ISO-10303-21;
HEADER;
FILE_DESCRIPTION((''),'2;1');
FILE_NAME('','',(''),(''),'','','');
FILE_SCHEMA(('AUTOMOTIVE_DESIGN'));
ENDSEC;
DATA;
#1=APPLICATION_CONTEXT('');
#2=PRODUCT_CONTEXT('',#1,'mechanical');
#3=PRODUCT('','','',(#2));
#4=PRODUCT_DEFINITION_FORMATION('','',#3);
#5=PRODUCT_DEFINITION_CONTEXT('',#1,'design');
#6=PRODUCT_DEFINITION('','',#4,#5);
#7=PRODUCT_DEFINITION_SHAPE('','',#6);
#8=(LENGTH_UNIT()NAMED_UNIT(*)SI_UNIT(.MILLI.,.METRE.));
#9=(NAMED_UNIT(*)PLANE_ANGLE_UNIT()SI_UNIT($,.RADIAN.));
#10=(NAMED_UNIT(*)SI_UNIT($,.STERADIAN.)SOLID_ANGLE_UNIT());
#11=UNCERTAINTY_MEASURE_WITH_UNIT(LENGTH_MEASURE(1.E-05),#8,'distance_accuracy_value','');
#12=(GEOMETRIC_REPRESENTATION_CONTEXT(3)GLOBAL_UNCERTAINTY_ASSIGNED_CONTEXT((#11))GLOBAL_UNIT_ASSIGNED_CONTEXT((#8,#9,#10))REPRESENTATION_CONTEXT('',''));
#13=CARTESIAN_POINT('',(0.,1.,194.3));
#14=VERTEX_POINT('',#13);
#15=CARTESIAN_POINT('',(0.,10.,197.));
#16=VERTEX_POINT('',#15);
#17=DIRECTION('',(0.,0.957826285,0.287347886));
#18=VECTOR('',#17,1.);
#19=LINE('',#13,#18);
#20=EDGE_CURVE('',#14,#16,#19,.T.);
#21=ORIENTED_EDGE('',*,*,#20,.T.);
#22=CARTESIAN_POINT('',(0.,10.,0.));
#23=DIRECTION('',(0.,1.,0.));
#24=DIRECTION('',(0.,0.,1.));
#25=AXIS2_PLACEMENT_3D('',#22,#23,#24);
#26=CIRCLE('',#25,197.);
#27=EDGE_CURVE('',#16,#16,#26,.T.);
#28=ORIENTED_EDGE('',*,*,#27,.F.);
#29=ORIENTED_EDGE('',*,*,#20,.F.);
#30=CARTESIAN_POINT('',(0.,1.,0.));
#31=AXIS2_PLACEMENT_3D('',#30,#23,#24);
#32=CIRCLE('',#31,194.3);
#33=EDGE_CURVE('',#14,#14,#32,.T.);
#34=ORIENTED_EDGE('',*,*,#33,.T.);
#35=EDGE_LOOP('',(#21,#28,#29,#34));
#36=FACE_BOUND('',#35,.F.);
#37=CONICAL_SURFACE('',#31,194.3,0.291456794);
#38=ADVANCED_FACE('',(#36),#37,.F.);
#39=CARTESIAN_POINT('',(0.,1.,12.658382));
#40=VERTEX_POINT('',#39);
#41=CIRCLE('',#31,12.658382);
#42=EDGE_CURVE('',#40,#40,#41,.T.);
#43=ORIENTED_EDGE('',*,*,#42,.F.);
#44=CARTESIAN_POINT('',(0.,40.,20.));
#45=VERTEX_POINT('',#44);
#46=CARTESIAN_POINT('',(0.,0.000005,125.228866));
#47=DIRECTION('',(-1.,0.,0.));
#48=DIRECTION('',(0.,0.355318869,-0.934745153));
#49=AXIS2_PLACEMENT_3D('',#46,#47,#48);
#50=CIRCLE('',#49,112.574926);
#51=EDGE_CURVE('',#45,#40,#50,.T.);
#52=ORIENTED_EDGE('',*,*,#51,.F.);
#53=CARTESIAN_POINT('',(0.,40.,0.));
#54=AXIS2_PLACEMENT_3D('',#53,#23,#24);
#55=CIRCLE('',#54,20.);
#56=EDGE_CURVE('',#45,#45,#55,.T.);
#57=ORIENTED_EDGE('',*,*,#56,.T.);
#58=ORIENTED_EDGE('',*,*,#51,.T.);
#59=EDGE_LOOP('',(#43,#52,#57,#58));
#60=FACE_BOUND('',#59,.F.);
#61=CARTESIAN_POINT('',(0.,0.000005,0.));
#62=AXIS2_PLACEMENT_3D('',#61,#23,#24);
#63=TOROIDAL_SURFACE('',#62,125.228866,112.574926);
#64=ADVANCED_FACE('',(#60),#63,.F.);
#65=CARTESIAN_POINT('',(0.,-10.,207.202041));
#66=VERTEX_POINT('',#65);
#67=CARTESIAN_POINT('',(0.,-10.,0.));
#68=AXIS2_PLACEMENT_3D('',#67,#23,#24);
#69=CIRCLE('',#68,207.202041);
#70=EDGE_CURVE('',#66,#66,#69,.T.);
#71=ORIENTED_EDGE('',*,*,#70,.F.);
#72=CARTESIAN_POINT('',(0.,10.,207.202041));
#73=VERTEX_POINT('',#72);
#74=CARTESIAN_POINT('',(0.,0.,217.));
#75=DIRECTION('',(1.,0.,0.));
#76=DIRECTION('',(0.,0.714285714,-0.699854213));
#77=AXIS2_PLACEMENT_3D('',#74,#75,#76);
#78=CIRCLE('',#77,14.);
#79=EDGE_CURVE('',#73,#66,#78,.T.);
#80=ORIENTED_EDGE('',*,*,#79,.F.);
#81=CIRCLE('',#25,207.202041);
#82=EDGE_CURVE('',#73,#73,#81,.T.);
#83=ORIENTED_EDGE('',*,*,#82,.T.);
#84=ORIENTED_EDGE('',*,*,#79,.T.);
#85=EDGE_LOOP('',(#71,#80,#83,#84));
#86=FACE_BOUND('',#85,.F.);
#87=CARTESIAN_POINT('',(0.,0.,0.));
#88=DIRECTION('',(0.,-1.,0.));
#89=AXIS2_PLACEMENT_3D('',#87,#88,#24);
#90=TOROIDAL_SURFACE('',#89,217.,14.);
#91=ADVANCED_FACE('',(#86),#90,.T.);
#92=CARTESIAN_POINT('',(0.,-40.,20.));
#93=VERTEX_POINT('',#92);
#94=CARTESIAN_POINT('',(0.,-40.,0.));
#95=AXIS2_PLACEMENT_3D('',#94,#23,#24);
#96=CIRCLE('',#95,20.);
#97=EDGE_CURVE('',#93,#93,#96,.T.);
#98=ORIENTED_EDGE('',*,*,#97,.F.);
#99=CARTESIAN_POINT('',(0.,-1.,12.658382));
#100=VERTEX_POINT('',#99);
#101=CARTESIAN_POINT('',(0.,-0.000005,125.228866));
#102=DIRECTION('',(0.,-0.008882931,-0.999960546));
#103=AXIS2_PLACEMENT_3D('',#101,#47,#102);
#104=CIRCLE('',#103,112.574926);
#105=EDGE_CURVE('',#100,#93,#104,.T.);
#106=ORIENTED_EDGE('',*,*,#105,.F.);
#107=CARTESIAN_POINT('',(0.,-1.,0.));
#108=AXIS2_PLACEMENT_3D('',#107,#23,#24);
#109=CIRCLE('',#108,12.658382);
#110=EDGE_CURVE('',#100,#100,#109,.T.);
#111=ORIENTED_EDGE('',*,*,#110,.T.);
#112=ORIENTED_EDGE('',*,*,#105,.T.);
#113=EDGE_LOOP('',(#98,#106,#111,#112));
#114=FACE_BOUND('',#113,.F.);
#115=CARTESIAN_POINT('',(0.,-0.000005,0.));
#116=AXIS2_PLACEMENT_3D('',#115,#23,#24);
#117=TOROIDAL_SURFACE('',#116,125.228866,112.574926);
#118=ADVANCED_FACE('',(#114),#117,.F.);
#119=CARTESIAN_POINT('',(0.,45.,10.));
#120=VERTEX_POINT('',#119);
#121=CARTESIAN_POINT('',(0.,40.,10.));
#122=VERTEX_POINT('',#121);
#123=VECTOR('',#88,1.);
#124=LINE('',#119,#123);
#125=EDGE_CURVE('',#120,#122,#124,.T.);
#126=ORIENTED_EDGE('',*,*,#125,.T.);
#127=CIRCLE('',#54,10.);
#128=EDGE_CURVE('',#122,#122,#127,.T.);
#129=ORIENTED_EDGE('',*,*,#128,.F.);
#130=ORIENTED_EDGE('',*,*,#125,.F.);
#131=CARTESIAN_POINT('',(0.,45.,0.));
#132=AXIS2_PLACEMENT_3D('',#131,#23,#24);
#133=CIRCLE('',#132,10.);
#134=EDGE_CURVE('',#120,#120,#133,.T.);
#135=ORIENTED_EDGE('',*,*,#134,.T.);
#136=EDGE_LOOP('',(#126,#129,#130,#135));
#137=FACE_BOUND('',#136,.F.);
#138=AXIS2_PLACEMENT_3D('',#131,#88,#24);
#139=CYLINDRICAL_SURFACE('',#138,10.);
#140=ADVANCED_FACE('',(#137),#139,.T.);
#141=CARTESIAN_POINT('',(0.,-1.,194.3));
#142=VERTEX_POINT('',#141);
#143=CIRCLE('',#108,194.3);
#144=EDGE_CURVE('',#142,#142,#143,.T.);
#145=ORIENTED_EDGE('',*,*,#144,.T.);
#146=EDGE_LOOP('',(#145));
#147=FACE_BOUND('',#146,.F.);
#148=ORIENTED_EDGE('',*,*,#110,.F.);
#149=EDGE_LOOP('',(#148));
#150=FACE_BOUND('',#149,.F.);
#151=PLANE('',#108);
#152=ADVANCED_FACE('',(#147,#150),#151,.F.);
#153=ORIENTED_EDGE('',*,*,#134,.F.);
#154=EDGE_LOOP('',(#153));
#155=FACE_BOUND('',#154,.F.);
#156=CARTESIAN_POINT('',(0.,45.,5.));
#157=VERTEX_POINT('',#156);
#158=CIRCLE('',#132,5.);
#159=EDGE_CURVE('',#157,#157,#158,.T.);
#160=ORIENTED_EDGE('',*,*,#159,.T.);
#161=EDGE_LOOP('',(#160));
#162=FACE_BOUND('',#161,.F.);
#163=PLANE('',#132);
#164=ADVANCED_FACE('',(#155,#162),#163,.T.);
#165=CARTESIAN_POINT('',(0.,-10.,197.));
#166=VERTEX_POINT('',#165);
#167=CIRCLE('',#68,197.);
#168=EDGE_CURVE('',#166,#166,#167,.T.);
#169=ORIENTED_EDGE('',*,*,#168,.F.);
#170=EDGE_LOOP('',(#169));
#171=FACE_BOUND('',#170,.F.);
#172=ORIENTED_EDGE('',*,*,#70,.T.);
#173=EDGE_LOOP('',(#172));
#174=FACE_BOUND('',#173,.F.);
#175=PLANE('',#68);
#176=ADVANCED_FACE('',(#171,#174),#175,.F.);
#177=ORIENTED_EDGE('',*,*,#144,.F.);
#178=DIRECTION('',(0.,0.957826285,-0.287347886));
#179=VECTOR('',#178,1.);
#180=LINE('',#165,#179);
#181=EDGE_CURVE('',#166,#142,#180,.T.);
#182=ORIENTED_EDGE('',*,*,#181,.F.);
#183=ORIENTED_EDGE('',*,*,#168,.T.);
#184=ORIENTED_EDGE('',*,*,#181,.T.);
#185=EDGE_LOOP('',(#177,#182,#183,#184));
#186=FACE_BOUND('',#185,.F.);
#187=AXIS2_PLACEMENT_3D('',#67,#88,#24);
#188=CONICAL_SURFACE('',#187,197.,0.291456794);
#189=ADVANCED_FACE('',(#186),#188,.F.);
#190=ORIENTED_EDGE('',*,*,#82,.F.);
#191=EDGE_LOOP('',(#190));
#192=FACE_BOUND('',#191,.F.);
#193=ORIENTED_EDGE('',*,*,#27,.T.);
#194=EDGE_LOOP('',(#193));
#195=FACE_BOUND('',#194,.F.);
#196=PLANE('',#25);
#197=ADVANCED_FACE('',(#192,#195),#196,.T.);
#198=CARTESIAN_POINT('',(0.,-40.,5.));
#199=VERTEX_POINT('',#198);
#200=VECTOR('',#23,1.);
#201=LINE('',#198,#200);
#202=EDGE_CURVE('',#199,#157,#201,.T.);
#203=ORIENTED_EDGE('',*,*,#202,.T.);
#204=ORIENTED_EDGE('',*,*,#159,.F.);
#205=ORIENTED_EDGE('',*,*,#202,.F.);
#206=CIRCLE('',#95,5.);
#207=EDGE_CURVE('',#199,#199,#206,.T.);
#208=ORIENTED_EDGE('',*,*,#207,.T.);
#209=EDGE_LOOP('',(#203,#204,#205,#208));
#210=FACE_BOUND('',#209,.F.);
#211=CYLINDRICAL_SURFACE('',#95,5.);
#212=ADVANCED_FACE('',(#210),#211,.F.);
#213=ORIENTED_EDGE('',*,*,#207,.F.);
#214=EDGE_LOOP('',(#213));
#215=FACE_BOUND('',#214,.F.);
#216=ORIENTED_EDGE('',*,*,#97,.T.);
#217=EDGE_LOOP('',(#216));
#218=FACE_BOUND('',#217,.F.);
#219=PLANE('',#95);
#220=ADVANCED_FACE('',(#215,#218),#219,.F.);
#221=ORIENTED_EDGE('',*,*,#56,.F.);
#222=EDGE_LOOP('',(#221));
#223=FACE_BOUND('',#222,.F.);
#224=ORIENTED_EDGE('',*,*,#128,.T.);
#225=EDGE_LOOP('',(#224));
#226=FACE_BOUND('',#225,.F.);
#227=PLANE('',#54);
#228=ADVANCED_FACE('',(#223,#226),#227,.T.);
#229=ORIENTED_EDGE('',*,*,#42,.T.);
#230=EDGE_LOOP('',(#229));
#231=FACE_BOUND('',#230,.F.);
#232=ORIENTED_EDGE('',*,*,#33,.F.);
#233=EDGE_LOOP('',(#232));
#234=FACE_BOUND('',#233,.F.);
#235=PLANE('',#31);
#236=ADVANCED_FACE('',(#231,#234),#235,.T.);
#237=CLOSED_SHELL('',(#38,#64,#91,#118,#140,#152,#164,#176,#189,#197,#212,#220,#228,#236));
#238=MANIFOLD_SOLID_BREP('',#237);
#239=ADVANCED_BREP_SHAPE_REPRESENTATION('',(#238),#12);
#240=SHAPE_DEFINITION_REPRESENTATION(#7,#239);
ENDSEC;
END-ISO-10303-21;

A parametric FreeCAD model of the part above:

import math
import FreeCAD as App
import Part
import Sketcher
Q = App.Units.Quantity

doc = App.newDocument("Part")
body = doc.addObject("PartDesign::Body", "Body")

# Sketch on YZ plane
sketch1 = body.newObject("Sketcher::SketchObject", "Sketch")
sketch1.AttachmentSupport = (doc.getObject("YZ_Plane"), [""])
sketch1.MapMode = "FlatFace"
sketch1.addGeometry([
    Part.LineSegment(App.Vector(10, 197, 0), App.Vector(10, 207, 0)),  # 0
    Part.ArcOfCircle(Part.Circle(App.Vector(0, 217, 0), App.Vector(0, 0, 1), 14), math.radians(-44), math.radians(224)),  # 1
    Part.LineSegment(App.Vector(-10, 207, 0), App.Vector(-10, 197, 0)),  # 2
    Part.LineSegment(App.Vector(-10, 197, 0), App.Vector(-1, 194, 0)),  # 3
    Part.LineSegment(App.Vector(-1, 194, 0), App.Vector(-1, 13, 0)),  # 4
    Part.ArcOfCircle(Part.Circle(App.Vector(0, 125, 0), App.Vector(0, 0, 1), 113), math.radians(-111), math.radians(-91)),  # 5
    Part.LineSegment(App.Vector(-40, 20, 0), App.Vector(-40, 5, 0)),  # 6
    Part.LineSegment(App.Vector(-40, 5, 0), App.Vector(45, 5, 0)),  # 7
    Part.LineSegment(App.Vector(45, 5, 0), App.Vector(45, 10, 0)),  # 8
    Part.LineSegment(App.Vector(45, 10, 0), App.Vector(40, 10, 0)),  # 9
    Part.LineSegment(App.Vector(40, 10, 0), App.Vector(40, 20, 0)),  # 10
    Part.ArcOfCircle(Part.Circle(App.Vector(0, 125, 0), App.Vector(0, 0, 1), 113), math.radians(-89), math.radians(-69)),  # 11
    Part.LineSegment(App.Vector(1, 13, 0), App.Vector(1, 194, 0)),  # 12
    Part.LineSegment(App.Vector(1, 194, 0), App.Vector(10, 197, 0)),  # 13
], False)
sketch1.addConstraint([
    Sketcher.Constraint("Coincident", 0, 2, 1, 1),
    Sketcher.Constraint("Coincident", 1, 2, 2, 1),
    Sketcher.Constraint("Coincident", 2, 2, 3, 1),
    Sketcher.Constraint("Coincident", 3, 2, 4, 1),
    Sketcher.Constraint("Coincident", 4, 2, 5, 2),
    Sketcher.Constraint("Coincident", 5, 1, 6, 1),
    Sketcher.Constraint("Coincident", 6, 2, 7, 1),
    Sketcher.Constraint("Coincident", 7, 2, 8, 1),
    Sketcher.Constraint("Coincident", 8, 2, 9, 1),
    Sketcher.Constraint("Coincident", 9, 2, 10, 1),
    Sketcher.Constraint("Coincident", 10, 2, 11, 2),
    Sketcher.Constraint("Coincident", 11, 1, 12, 1),
    Sketcher.Constraint("Coincident", 12, 2, 13, 1),
    Sketcher.Constraint("Coincident", 13, 2, 0, 1),
    Sketcher.Constraint("Vertical", 0),
    Sketcher.Constraint("Vertical", 2),
    Sketcher.Constraint("Vertical", 4),
    Sketcher.Constraint("Vertical", 6),
    Sketcher.Constraint("Horizontal", 7),
    Sketcher.Constraint("Vertical", 8),
    Sketcher.Constraint("Horizontal", 9),
    Sketcher.Constraint("Vertical", 10),
    Sketcher.Constraint("Vertical", 12),
    Sketcher.Constraint("Coincident", 11, 3, 5, 3),
    Sketcher.Constraint("Equal", 5, 11),
    Sketcher.Constraint("Symmetric", 0, 2, 1, 2, -2),
    Sketcher.Constraint("Symmetric", 5, 1, 10, 2, -2),
    Sketcher.Constraint("Symmetric", 3, 2, 12, 2, -2),
    Sketcher.Constraint("Horizontal", 2, 2, 13, 2),
    Sketcher.Constraint("Equal", 9, 8),
    Sketcher.Constraint("Radius", 1, Q("14 mm")),
    Sketcher.Constraint("DistanceX", 7, 1, 7, 2, Q("85 mm")),
    Sketcher.Constraint("DistanceX", 9, 2, 9, 1, Q("5 mm")),
    Sketcher.Constraint("DistanceY", 6, 2, 6, 1, Q("15 mm")),
    Sketcher.Constraint("DistanceY", -1, 1, 1, 3, Q("217 mm")),
    Sketcher.Constraint("DistanceX", -1, 1, 0, 2, Q("10 mm")),
    Sketcher.Constraint("DistanceY", -1, 1, 2, 2, Q("197 mm")),
    Sketcher.Constraint("DistanceX", 3, 2, -1, 1, Q("1 mm")),
    Sketcher.Constraint("DistanceY", -1, 1, 5, 1, Q("20 mm")),
    Sketcher.Constraint("DistanceY", -1, 1, 3, 2, Q("194.3 mm")),
    Sketcher.Constraint("Radius", 5, Q("112.574926 mm")),
])
revolution = body.newObject("PartDesign::Revolution", "Revolution")
revolution.Profile = sketch1
revolution.ReferenceAxis = (sketch1, ["H_Axis"])
revolution.Angle = 360

doc.recompute()
